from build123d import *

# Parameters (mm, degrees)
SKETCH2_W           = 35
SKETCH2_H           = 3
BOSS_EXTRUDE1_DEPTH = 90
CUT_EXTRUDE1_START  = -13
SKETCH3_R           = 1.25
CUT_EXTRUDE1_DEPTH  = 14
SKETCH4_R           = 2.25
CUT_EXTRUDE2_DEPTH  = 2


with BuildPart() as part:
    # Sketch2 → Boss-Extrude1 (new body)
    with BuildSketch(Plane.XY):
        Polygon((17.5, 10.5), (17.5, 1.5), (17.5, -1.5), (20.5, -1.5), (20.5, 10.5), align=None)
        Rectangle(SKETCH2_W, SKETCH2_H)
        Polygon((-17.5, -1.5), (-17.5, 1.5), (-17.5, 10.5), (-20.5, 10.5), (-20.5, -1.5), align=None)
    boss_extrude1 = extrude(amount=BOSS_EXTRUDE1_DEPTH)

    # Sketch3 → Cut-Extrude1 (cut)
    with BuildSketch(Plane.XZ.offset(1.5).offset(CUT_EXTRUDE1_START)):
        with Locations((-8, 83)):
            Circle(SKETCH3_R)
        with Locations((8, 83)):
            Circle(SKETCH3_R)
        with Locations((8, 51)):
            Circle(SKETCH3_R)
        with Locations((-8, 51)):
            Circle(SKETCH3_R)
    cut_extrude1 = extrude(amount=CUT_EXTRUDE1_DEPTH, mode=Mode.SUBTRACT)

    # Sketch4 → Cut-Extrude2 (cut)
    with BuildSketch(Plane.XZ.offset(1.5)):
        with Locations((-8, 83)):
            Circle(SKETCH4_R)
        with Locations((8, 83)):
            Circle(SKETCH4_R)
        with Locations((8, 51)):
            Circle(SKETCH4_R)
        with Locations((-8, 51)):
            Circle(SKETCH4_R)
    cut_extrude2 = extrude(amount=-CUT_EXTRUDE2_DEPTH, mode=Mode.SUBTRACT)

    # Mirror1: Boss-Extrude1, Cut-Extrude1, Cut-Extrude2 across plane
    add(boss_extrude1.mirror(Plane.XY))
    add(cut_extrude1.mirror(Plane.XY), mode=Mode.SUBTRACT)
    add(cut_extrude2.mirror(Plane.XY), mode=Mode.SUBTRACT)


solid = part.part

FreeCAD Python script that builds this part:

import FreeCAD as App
import Part
import Sketcher

doc = App.newDocument("Part")
body = doc.addObject("PartDesign::Body", "Body")

sketch1 = body.newObject("Sketcher::SketchObject", "Sketch")
sketch1.AttachmentSupport = (doc.getObject("XY_Plane"), [""])
sketch1.MapMode = "FlatFace"
sketch1.addGeometry([
    Part.LineSegment(App.Vector(17.5, 10.5, 0), App.Vector(17.5, 1.5, 0)),
    Part.LineSegment(App.Vector(17.5, 1.5, 0), App.Vector(-17.5, 1.5, 0)),
    Part.LineSegment(App.Vector(-17.5, 1.5, 0), App.Vector(-17.5, 10.5, 0)),
    Part.LineSegment(App.Vector(-17.5, 10.5, 0), App.Vector(-20.5, 10.5, 0)),
    Part.LineSegment(App.Vector(-20.5, 10.5, 0), App.Vector(-20.5, -1.5, 0)),
    Part.LineSegment(App.Vector(-20.5, -1.5, 0), App.Vector(20.5, -1.5, 0)),
    Part.LineSegment(App.Vector(20.5, -1.5, 0), App.Vector(20.5, 10.5, 0)),
    Part.LineSegment(App.Vector(20.5, 10.5, 0), App.Vector(17.5, 10.5, 0)),
], False)
sketch1.addConstraint([
    Sketcher.Constraint("Coincident", 0, 2, 1, 1),
    Sketcher.Constraint("Coincident", 1, 2, 2, 1),
    Sketcher.Constraint("Coincident", 2, 2, 3, 1),
    Sketcher.Constraint("Coincident", 3, 2, 4, 1),
    Sketcher.Constraint("Coincident", 4, 2, 5, 1),
    Sketcher.Constraint("Coincident", 5, 2, 6, 1),
    Sketcher.Constraint("Coincident", 6, 2, 7, 1),
    Sketcher.Constraint("Coincident", 7, 2, 0, 1),
    Sketcher.Constraint("Vertical", 0),
    Sketcher.Constraint("Horizontal", 1),
    Sketcher.Constraint("Vertical", 2),
    Sketcher.Constraint("Horizontal", 3),
    Sketcher.Constraint("Vertical", 4),
    Sketcher.Constraint("Horizontal", 5),
    Sketcher.Constraint("Vertical", 6),
    Sketcher.Constraint("Horizontal", 7),
    Sketcher.Constraint("Symmetric", 3, 2, 6, 2, -2),
    Sketcher.Constraint("Equal", 3, 7),
    Sketcher.Constraint("DistanceX", 1, 2, 1, 1, 35.0),
    Sketcher.Constraint("DistanceX", 3, 2, 3, 1, 3.0),
    Sketcher.Constraint("DistanceY", 0, 2, 0, 1, 9.0),
    Sketcher.Constraint("DistanceY", 4, 2, 4, 1, 12.0),
    Sketcher.Constraint("DistanceY", -1, 1, 0, 2, 1.5),
])
pad1 = body.newObject("PartDesign::Pad", "Pad")
pad1.Profile = sketch1
pad1.Length = 90

sketch2 = body.newObject("Sketcher::SketchObject", "Sketch001")
sketch2.AttachmentSupport = (doc.getObject("XZ_Plane"), [""])
sketch2.MapMode = "FlatFace"
sketch2.AttachmentOffset = App.Placement(App.Vector(0, 0, -11.5), App.Rotation())
sketch2.addGeometry([
    Part.Circle(App.Vector(-8, 83, 0), App.Vector(0, 0, 1), 1.2),
    Part.Circle(App.Vector(8, 83, 0), App.Vector(0, 0, 1), 1.2),
    Part.Circle(App.Vector(8, 51, 0), App.Vector(0, 0, 1), 1.2),
    Part.Circle(App.Vector(-8, 51, 0), App.Vector(0, 0, 1), 1.2),
], False)
sketch2.addConstraint([
    Sketcher.Constraint("Equal", 0, 1),
    Sketcher.Constraint("Equal", 1, 2),
    Sketcher.Constraint("Equal", 2, 3),
    Sketcher.Constraint("Symmetric", 0, 3, 1, 3, -2),
    Sketcher.Constraint("Symmetric", 2, 3, 3, 3, -2),
    Sketcher.Constraint("Vertical", 1, 3, 2, 3),
    Sketcher.Constraint("Diameter", 0, 2.5),
    Sketcher.Constraint("DistanceX", 0, 3, -1, 1, 8.0),
    Sketcher.Constraint("DistanceY", -1, 1, 0, 3, 83.0),
    Sketcher.Constraint("DistanceY", -1, 1, 2, 3, 51.0),
])
pocket1 = body.newObject("PartDesign::Pocket", "Pocket")
pocket1.Profile = sketch2
pocket1.Length = 14
pocket1.Reversed = True

sketch3 = body.newObject("Sketcher::SketchObject", "Sketch002")
sketch3.AttachmentSupport = (doc.getObject("XZ_Plane"), [""])
sketch3.MapMode = "FlatFace"
sketch3.AttachmentOffset = App.Placement(App.Vector(0, 0, 1.5), App.Rotation())
sketch3.addGeometry([
    Part.Circle(App.Vector(-8, 83, 0), App.Vector(0, 0, 1), 2.2),
    Part.Circle(App.Vector(8, 83, 0), App.Vector(0, 0, 1), 2.2),
    Part.Circle(App.Vector(8, 51, 0), App.Vector(0, 0, 1), 2.2),
    Part.Circle(App.Vector(-8, 51, 0), App.Vector(0, 0, 1), 2.2),
], False)
sketch3.addConstraint([
    Sketcher.Constraint("Equal", 0, 1),
    Sketcher.Constraint("Equal", 1, 2),
    Sketcher.Constraint("Equal", 2, 3),
    Sketcher.Constraint("Symmetric", 0, 3, 1, 3, -2),
    Sketcher.Constraint("Symmetric", 2, 3, 3, 3, -2),
    Sketcher.Constraint("Vertical", 1, 3, 2, 3),
    Sketcher.Constraint("Diameter", 0, 4.5),
    Sketcher.Constraint("DistanceX", 0, 3, -1, 1, 8.0),
    Sketcher.Constraint("DistanceY", -1, 1, 0, 3, 83.0),
    Sketcher.Constraint("DistanceY", -1, 1, 2, 3, 51.0),
])
pocket2 = body.newObject("PartDesign::Pocket", "Pocket001")
pocket2.Profile = sketch3
pocket2.Length = 2
doc.recompute()

mirrored = body.newObject("PartDesign::Mirrored", "Mirrored")
mirrored.Originals = [pad1, pocket1, pocket2]
mirrored.MirrorPlane = (doc.getObject("XY_Plane"), [""])
body.Tip = mirrored

doc.recompute()
